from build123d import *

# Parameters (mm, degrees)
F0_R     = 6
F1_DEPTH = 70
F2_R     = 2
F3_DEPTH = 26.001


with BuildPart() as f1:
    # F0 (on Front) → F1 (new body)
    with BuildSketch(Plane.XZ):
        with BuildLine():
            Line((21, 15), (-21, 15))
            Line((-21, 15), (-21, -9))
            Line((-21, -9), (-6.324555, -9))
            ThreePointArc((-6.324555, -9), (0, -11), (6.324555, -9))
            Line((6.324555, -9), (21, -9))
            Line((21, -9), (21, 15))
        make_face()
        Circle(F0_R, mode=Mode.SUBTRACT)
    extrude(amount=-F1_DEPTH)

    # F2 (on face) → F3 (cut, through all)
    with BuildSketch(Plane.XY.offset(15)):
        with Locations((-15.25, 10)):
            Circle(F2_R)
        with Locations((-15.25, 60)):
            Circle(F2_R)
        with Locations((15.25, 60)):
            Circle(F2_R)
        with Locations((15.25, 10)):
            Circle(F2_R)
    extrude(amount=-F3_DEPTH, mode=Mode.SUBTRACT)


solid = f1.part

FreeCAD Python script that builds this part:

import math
import FreeCAD as App
import Part
import Sketcher
from FreeCAD import Vector

doc = App.newDocument("Part")
params = doc.addObject("Spreadsheet::Sheet", "Params")
for row, (alias, value) in enumerate([
    ("sketch1_diameter", "12 mm"),
    ("sketch1_radius", "10.999999 mm"),
    ("sketch1_width", "42 mm"),
    ("sketch1_height", "24 mm"),
    ("pad1_length", "70 mm"),
    ("sketch2_diameter", "4 mm"),
], start=1):
    params.set(f"A{row}", alias)
    params.set(f"B{row}", "=" + value)
    params.setAlias(f"B{row}", alias)

body = doc.addObject("PartDesign::Body", "Body")

# Sketch on XZ plane
sketch1 = body.newObject("Sketcher::SketchObject", "Sketch")
sketch1.AttachmentSupport = (doc.getObject("XZ_Plane"), [""])
sketch1.MapMode = "FlatFace"
sketch1.addGeometry([
    Part.LineSegment(Vector(21, 15, 0), Vector(-21, 15, 0)),  # 0
    Part.LineSegment(Vector(-21, 15, 0), Vector(-21, -9, 0)),  # 1
    Part.LineSegment(Vector(-21, -9, 0), Vector(-6, -9, 0)),  # 2
    Part.ArcOfCircle(Part.Circle(Vector(0, 0, 0), Vector(0, 0, 1), 11), math.radians(-125), math.radians(-55)),  # 3
    Part.LineSegment(Vector(6, -9, 0), Vector(21, -9, 0)),  # 4
    Part.LineSegment(Vector(21, -9, 0), Vector(21, 15, 0)),  # 5
    Part.Circle(Vector(0, 0, 0), Vector(0, 0, 1), 6),  # 6
], False)
sketch1.addConstraint([
    Sketcher.Constraint("Coincident", 0, 2, 1, 1),
    Sketcher.Constraint("Coincident", 1, 2, 2, 1),
    Sketcher.Constraint("Coincident", 2, 2, 3, 1),
    Sketcher.Constraint("Coincident", 3, 2, 4, 1),
    Sketcher.Constraint("Coincident", 4, 2, 5, 1),
    Sketcher.Constraint("Coincident", 5, 2, 0, 1),
    Sketcher.Constraint("Horizontal", 0),
    Sketcher.Constraint("Vertical", 1),
    Sketcher.Constraint("Horizontal", 2),
    Sketcher.Constraint("Horizontal", 4),
    Sketcher.Constraint("Vertical", 5),
    Sketcher.Constraint("Coincident", 3, 3, -1, 1),
    Sketcher.Constraint("Coincident", 6, 3, -1, 1),
    Sketcher.Constraint("Symmetric", 1, 2, 4, 2, -2),
    Sketcher.Constraint("Diameter", 6, 12.0),
    Sketcher.Constraint("Radius", 3, 10.999999),
    Sketcher.Constraint("DistanceX", 0, 2, 0, 1, 42.0),
    Sketcher.Constraint("DistanceY", 1, 2, 1, 1, 24.0),
    Sketcher.Constraint("DistanceY", -1, 1, 0, 2, 15.0),
])
sketch1.setExpression("Constraints[14]", "Params.sketch1_diameter")
sketch1.setExpression("Constraints[15]", "Params.sketch1_radius")
sketch1.setExpression("Constraints[16]", "Params.sketch1_width")
sketch1.setExpression("Constraints[17]", "Params.sketch1_height")
pad1 = body.newObject("PartDesign::Pad", "Pad")
pad1.Profile = sketch1
pad1.setExpression("Length", "Params.pad1_length")
pad1.Reversed = True

# Sketch on XY plane
sketch2 = body.newObject("Sketcher::SketchObject", "Sketch001")
sketch2.AttachmentSupport = (doc.getObject("XY_Plane"), [""])
sketch2.MapMode = "FlatFace"
sketch2.AttachmentOffset = App.Placement(Vector(0, 0, 15), App.Rotation())
sketch2.addGeometry([
    Part.Circle(Vector(-15.2, 10, 0), Vector(0, 0, 1), 2),
    Part.Circle(Vector(-15.2, 60, 0), Vector(0, 0, 1), 2),
    Part.Circle(Vector(15.2, 60, 0), Vector(0, 0, 1), 2),
    Part.Circle(Vector(15.2, 10, 0), Vector(0, 0, 1), 2),
], False)
sketch2.addConstraint([
    Sketcher.Constraint("Equal", 0, 1),
    Sketcher.Constraint("Equal", 1, 2),
    Sketcher.Constraint("Equal", 2, 3),
    Sketcher.Constraint("Symmetric", 1, 3, 2, 3, -2),
    Sketcher.Constraint("Symmetric", 0, 3, 3, 3, -2),
    Sketcher.Constraint("Vertical", 0, 3, 1, 3),
    Sketcher.Constraint("Diameter", 0, 4.0),
    Sketcher.Constraint("DistanceY", -1, 1, 0, 3, 10.0),
    Sketcher.Constraint("DistanceY", -1, 1, 1, 3, 60.0),
    Sketcher.Constraint("DistanceX", 1, 3, 2, 3, 30.5),
])
sketch2.setExpression("Constraints[6]", "Params.sketch2_diameter")
pocket1 = body.newObject("PartDesign::Pocket", "Pocket")
pocket1.Profile = sketch2
pocket1.Type = "ThroughAll"

doc.recompute()
